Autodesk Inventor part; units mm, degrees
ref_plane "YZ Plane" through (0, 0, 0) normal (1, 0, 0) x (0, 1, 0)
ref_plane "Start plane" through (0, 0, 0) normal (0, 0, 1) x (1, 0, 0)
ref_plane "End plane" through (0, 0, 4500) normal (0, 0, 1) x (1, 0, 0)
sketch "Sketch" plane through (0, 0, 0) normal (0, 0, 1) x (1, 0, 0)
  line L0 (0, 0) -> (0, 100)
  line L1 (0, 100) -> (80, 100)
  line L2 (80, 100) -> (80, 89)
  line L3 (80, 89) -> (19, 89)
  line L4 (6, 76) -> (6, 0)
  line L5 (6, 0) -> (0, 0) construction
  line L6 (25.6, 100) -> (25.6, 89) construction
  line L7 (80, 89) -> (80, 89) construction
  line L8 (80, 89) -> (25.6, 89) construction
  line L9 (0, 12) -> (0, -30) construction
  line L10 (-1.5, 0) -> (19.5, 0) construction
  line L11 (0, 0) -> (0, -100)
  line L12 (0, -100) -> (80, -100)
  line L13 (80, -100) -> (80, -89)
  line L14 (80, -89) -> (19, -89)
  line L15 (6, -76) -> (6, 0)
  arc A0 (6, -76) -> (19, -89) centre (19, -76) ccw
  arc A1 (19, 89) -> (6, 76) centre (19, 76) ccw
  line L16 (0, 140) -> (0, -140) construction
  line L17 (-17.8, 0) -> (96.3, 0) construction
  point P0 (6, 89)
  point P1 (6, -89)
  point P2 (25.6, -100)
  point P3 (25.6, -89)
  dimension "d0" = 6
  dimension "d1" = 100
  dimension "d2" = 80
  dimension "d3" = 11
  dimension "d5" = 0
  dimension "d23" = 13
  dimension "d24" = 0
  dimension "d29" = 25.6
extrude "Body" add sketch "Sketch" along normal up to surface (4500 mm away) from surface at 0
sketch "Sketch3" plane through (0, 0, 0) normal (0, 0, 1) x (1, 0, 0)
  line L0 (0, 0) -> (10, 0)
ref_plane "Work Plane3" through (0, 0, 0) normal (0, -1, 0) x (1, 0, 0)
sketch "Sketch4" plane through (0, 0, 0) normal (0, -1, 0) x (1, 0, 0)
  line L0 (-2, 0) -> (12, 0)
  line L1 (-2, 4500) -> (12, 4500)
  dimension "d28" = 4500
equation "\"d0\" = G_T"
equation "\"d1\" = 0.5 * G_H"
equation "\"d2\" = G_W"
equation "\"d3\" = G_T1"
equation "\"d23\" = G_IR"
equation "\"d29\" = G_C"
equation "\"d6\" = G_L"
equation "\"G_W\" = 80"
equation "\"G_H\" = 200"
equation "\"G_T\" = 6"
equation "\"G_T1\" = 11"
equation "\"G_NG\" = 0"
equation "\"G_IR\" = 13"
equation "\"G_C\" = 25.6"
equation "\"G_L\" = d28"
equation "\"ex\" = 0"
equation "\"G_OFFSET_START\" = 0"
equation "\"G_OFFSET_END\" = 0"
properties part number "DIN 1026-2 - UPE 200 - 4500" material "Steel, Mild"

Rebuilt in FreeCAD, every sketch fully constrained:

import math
import FreeCAD as App
import Part
import Sketcher

V = App.Vector
Q = App.Units.Quantity

doc = App.newDocument("Part")
body = doc.addObject("PartDesign::Body", "Body")

# Sketch on XY plane
sketch1 = doc.addObject("Sketcher::SketchObject", "Sketch")
body.addObject(sketch1)
sketch1.AttachmentSupport = (doc.XY_Plane, [""])
sketch1.MapMode = "FlatFace"
sketch1.addGeometry([
    Part.LineSegment(V(0, 100, 0), V(0, -100, 0)),  # 0
    Part.LineSegment(V(0, -100, 0), V(80, -100, 0)),  # 1
    Part.LineSegment(V(80, -100, 0), V(80, -89, 0)),  # 2
    Part.LineSegment(V(80, -89, 0), V(19, -89, 0)),  # 3
    Part.ArcOfCircle(Part.Circle(V(19, -76, 0), V(0, 0, 1), 13), math.radians(180), math.radians(270)),  # 4
    Part.LineSegment(V(6, -76, 0), V(6, 76, 0)),  # 5
    Part.ArcOfCircle(Part.Circle(V(19, 76, 0), V(0, 0, 1), 13), math.radians(90), math.radians(180)),  # 6
    Part.LineSegment(V(19, 89, 0), V(80, 89, 0)),  # 7
    Part.LineSegment(V(80, 89, 0), V(80, 100, 0)),  # 8
    Part.LineSegment(V(80, 100, 0), V(0, 100, 0)),  # 9
], False)
sketch1.addConstraint([
    Sketcher.Constraint("Coincident", 0, 2, 1, 1),
    Sketcher.Constraint("Coincident", 1, 2, 2, 1),
    Sketcher.Constraint("Coincident", 2, 2, 3, 1),
    Sketcher.Constraint("Tangent", 3, 2, 4, 2),
    Sketcher.Constraint("Tangent", 4, 1, 5, 1),
    Sketcher.Constraint("Tangent", 5, 2, 6, 2),
    Sketcher.Constraint("Tangent", 6, 1, 7, 1),
    Sketcher.Constraint("Coincident", 7, 2, 8, 1),
    Sketcher.Constraint("Coincident", 8, 2, 9, 1),
    Sketcher.Constraint("Coincident", 9, 2, 0, 1),
    Sketcher.Constraint("Vertical", 0),
    Sketcher.Constraint("Horizontal", 1),
    Sketcher.Constraint("Vertical", 2),
    Sketcher.Constraint("Horizontal", 3),
    Sketcher.Constraint("Vertical", 5),
    Sketcher.Constraint("Horizontal", 7),
    Sketcher.Constraint("Vertical", 8),
    Sketcher.Constraint("Horizontal", 9),
    Sketcher.Constraint("Equal", 4, 6),
    Sketcher.Constraint("Symmetric", 0, 2, 9, 2, -1, 1),
    Sketcher.Constraint("Symmetric", 2, 2, 7, 2, -1),
    Sketcher.Constraint("Radius", 4, Q("13 mm")),
    Sketcher.Constraint("DistanceX", 1, 1, 1, 2, Q("80 mm")),
    Sketcher.Constraint("DistanceY", 2, 1, 2, 2, Q("11 mm")),
    Sketcher.Constraint("DistanceY", 0, 2, -1, 1, Q("100 mm")),
    Sketcher.Constraint("DistanceX", -1, 1, 4, 1, Q("6 mm")),
])
pad1 = doc.addObject("PartDesign::Pad", "Pad")
body.addObject(pad1)
pad1.Profile = sketch1
pad1.Length = 4500

doc.recompute()
